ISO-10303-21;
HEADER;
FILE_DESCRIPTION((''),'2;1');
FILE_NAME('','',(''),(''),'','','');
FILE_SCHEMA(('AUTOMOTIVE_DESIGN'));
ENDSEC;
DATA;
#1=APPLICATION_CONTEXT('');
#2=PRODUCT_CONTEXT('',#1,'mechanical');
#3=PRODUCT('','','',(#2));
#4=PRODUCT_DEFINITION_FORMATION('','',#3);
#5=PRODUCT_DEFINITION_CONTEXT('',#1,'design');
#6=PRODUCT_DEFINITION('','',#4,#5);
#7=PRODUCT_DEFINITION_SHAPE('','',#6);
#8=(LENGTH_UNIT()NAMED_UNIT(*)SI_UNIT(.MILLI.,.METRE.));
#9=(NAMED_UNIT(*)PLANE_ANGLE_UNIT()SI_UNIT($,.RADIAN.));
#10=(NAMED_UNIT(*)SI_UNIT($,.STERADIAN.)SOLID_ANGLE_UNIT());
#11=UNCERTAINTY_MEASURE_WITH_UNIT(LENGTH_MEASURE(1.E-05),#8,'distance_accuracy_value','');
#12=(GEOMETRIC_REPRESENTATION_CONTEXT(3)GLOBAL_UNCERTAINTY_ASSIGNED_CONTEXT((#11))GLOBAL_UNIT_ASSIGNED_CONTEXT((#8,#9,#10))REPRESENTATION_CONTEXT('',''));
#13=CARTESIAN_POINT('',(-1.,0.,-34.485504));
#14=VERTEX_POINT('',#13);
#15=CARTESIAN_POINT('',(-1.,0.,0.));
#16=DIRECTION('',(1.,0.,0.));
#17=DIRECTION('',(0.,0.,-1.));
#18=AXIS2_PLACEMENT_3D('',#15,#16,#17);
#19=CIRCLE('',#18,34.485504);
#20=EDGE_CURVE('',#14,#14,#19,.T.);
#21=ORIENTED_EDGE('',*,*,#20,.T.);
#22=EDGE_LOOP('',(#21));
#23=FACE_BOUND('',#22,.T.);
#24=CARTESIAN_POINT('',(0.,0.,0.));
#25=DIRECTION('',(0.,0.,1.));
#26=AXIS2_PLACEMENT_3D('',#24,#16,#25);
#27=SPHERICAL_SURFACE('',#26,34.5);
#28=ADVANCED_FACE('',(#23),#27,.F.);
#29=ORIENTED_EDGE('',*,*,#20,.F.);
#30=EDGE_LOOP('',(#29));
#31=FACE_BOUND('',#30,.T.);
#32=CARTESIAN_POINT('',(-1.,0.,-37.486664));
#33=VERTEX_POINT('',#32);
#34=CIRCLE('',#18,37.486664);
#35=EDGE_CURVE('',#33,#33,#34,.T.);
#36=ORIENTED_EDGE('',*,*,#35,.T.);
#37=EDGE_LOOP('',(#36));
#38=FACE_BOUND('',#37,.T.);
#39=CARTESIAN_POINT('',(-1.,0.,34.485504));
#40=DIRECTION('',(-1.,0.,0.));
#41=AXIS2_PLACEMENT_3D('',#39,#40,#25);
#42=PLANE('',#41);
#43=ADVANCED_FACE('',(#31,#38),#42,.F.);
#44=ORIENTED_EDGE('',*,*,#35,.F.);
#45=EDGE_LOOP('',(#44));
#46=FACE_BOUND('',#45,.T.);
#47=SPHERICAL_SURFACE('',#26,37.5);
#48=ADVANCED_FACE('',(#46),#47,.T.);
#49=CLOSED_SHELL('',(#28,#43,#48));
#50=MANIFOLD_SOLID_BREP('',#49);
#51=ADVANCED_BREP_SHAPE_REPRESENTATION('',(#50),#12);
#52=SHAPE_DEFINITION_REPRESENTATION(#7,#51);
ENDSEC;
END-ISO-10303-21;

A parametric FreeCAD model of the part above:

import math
import FreeCAD as App
import Part
import Sketcher
Q = App.Units.Quantity

doc = App.newDocument("Part")
params = doc.addObject("Spreadsheet::Sheet", "Params")
for row, (alias, value) in enumerate([
    ("sketch1_radius", "37.5 mm"),
    ("sketch1_radius2", "34.5 mm"),
    ("revolution_angle", "360 deg"),
], start=1):
    params.set(f"A{row}", alias)
    params.set(f"B{row}", "=" + value)
    params.setAlias(f"B{row}", alias)

body = doc.addObject("PartDesign::Body", "Body")

# Sketch on XZ plane
sketch1 = body.newObject("Sketcher::SketchObject", "Sketch")
sketch1.AttachmentSupport = (doc.getObject("XZ_Plane"), [""])
sketch1.MapMode = "FlatFace"
sketch1.addGeometry(Part.LineSegment(App.Vector(-34.5, 0, 0), App.Vector(-37.5, 0, 0)), False)
sketch1.addGeometry(Part.ArcOfCircle(Part.Circle(App.Vector(0, 0, 0), App.Vector(0, 0, 1), 37.5), math.radians(91.528069), math.radians(180)), False)
sketch1.addGeometry(Part.LineSegment(App.Vector(-1, 37.486664, 0), App.Vector(-1, 34.485504, 0)), False)
sketch1.addGeometry(Part.ArcOfCircle(Part.Circle(App.Vector(0, 0, 0), App.Vector(0, 0, 1), 34.5), math.radians(91.66098), math.radians(180)), False)
sketch1.addConstraint(Sketcher.Constraint("Coincident", 0, 2, 1, 2))
sketch1.addConstraint(Sketcher.Constraint("Coincident", 1, 1, 2, 1))
sketch1.addConstraint(Sketcher.Constraint("Coincident", 2, 2, 3, 1))
sketch1.addConstraint(Sketcher.Constraint("Coincident", 3, 2, 0, 1))
sketch1.addConstraint(Sketcher.Constraint("Horizontal", 0))
sketch1.addConstraint(Sketcher.Constraint("Vertical", 2))
sketch1.addConstraint(Sketcher.Constraint("Coincident", 1, 3, -1, 1))
sketch1.addConstraint(Sketcher.Constraint("Coincident", 3, 3, -1, 1))
sketch1.addConstraint(Sketcher.Constraint("PointOnObject", 0, 2, -1))
sketch1.addConstraint(Sketcher.Constraint("Radius", 1, Q("37.5 mm")))
sketch1.addConstraint(Sketcher.Constraint("Radius", 3, Q("34.5 mm")))
sketch1.addConstraint(Sketcher.Constraint("DistanceX", 1, 1, -1, 1, Q("1 mm")))
sketch1.setExpression("Constraints[9]", "Params.sketch1_radius")
sketch1.setExpression("Constraints[10]", "Params.sketch1_radius2")
revolution = body.newObject("PartDesign::Revolution", "Revolution")
revolution.Profile = sketch1
revolution.ReferenceAxis = (sketch1, ["H_Axis"])
revolution.setExpression("Angle", "Params.revolution_angle")

doc.recompute()
